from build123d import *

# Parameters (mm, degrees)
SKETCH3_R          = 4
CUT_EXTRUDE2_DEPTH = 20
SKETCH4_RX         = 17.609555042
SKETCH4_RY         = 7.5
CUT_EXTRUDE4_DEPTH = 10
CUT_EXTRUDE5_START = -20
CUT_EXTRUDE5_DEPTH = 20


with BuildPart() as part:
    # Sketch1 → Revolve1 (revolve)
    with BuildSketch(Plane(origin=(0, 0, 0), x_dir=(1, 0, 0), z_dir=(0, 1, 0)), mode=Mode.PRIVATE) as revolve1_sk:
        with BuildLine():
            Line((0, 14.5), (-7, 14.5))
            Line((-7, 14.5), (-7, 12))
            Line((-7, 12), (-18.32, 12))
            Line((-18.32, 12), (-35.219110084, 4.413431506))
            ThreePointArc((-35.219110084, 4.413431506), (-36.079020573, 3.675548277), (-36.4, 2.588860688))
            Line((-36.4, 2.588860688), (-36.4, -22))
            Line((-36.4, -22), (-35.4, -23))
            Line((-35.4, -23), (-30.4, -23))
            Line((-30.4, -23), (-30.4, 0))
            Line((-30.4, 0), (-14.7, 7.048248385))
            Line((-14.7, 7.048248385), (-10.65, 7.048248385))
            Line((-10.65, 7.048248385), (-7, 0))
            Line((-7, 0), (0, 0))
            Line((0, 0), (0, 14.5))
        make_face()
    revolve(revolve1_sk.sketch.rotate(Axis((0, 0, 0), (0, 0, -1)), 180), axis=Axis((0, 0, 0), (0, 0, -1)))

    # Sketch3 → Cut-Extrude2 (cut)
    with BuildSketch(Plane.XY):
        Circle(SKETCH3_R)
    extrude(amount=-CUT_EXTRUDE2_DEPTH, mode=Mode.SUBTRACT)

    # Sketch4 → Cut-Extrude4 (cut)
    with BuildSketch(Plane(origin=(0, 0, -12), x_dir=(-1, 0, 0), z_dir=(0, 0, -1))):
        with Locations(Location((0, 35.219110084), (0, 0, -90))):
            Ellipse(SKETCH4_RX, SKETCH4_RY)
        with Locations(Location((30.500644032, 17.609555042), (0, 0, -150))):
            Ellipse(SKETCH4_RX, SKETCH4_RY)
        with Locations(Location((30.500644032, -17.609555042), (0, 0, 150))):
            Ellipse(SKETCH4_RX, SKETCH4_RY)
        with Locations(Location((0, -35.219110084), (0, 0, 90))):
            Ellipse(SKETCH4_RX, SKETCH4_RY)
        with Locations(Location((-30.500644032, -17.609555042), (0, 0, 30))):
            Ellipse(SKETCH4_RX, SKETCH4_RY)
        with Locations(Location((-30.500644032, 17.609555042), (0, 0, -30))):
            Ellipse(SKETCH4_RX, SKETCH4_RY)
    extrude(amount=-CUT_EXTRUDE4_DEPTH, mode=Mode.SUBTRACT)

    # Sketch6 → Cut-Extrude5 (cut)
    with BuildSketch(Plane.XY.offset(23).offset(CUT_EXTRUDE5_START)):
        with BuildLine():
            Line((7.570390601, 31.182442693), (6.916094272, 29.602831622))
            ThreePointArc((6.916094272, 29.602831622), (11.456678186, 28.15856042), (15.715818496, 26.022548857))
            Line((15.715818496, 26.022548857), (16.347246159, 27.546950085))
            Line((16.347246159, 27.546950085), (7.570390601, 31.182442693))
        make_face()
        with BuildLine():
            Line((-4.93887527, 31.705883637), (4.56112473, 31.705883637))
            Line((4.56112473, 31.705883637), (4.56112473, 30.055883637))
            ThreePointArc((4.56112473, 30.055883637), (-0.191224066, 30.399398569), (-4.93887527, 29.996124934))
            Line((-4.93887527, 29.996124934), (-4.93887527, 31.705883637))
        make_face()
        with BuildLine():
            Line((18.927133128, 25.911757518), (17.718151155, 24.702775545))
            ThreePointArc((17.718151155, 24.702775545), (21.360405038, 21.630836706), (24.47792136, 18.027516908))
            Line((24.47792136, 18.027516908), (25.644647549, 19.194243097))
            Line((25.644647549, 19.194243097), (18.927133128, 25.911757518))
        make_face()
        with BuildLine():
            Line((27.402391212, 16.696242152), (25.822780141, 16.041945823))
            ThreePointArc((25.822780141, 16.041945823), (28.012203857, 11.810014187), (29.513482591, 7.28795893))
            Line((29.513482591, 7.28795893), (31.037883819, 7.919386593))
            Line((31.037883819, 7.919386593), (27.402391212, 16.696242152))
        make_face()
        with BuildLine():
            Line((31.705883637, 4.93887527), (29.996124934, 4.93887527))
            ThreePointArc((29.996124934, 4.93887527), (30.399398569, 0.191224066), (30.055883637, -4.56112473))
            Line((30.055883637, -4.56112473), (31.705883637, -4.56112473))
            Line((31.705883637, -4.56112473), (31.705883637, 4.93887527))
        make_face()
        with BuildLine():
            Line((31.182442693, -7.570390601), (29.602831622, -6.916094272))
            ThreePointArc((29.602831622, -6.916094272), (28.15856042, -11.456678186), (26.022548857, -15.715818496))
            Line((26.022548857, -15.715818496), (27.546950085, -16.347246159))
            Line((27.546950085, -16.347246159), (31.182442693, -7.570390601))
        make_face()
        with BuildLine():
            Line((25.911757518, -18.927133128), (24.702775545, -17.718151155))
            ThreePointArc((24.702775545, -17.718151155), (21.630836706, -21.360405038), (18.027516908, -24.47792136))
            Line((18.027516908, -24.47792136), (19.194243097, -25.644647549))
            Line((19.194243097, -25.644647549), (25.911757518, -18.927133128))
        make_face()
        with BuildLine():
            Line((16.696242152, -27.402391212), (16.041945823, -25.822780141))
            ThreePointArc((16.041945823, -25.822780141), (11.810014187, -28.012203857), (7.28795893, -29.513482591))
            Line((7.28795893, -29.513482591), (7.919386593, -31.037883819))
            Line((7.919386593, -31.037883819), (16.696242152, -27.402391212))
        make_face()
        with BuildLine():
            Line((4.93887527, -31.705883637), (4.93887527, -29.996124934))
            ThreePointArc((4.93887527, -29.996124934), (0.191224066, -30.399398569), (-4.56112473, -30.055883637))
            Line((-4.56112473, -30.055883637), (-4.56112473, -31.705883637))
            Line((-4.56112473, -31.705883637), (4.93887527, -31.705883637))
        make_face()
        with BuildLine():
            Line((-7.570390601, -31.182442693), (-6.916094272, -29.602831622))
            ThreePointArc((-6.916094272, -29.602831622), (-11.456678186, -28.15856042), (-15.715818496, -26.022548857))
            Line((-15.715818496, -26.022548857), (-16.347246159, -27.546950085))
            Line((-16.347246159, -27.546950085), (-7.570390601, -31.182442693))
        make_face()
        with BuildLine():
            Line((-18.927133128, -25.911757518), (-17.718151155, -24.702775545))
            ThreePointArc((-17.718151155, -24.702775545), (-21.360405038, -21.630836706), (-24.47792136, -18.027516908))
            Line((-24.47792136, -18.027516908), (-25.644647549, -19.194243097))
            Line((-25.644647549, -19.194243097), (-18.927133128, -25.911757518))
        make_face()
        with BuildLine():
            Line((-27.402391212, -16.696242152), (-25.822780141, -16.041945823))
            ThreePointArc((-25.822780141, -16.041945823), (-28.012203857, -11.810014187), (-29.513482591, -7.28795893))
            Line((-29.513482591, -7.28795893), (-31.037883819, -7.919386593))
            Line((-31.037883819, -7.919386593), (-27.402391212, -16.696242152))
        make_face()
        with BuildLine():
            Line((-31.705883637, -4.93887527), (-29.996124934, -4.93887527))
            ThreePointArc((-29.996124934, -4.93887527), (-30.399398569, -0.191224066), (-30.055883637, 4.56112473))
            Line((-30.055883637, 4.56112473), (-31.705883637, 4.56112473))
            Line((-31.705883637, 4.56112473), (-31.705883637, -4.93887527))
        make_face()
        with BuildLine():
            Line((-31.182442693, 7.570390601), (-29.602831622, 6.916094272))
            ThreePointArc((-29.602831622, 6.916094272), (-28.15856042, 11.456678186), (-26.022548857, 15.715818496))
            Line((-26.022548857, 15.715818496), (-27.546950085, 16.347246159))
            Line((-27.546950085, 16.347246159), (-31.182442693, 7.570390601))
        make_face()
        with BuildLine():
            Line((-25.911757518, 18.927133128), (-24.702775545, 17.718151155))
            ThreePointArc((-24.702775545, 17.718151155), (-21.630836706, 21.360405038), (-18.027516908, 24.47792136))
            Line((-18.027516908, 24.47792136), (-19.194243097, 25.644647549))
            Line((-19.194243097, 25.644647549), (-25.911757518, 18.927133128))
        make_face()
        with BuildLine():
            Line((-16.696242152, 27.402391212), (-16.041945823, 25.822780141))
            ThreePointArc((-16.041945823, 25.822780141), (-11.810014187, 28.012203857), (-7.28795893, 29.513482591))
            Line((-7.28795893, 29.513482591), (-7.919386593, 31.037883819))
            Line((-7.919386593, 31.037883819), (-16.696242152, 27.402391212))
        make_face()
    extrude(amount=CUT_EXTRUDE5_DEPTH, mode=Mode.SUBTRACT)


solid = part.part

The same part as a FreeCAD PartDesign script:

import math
import FreeCAD as App
import Part
import Sketcher
Q = App.Units.Quantity

doc = App.newDocument("Part")
params = doc.addObject("Spreadsheet::Sheet", "Params")
for row, (alias, value) in enumerate([
    ("sketch1_radius", "2 mm"),
    ("sketch1_width", "7 mm"),
    ("sketch1_width2", "5 mm"),
    ("sketch1_height", "23 mm"),
    ("sketch1_height2", "2.5 mm"),
    ("revolution_angle", "360 deg"),
    ("sketch2_diameter", "8 mm"),
    ("pocket1_length", "20 mm"),
    ("pocket2_length", "10 mm"),
    ("sketch4_radius", "30.4 mm"),
    ("sketch4_width", "9.5 mm"),
    ("sketch4_length", "9.5 mm"),
    ("sketch4_width2", "1.65 mm"),
    ("sketch4_length2", "1.65 mm"),
    ("pocket3_length", "20 mm"),
], start=1):
    params.set(f"A{row}", alias)
    params.set(f"B{row}", "=" + value)
    params.setAlias(f"B{row}", alias)

body = doc.addObject("PartDesign::Body", "Body")

# Sketch on XZ plane
sketch1 = body.newObject("Sketcher::SketchObject", "Sketch")
sketch1.AttachmentSupport = (doc.getObject("XZ_Plane"), [""])
sketch1.MapMode = "FlatFace"
sketch1.addGeometry(Part.LineSegment(App.Vector(0, -14.5, 0), App.Vector(-7, -14.5, 0)), False)
sketch1.addGeometry(Part.LineSegment(App.Vector(-7, -14.5, 0), App.Vector(-7, -12, 0)), False)
sketch1.addGeometry(Part.LineSegment(App.Vector(-7, -12, 0), App.Vector(-18.3, -12, 0)), False)
sketch1.addGeometry(Part.LineSegment(App.Vector(-18.3, -12, 0), App.Vector(-35.2, -4.4, 0)), False)
sketch1.addGeometry(Part.ArcOfCircle(Part.Circle(App.Vector(-34.4, -2.6, 0), App.Vector(0, 0, 1), 2), math.radians(180), math.radians(246)), False)
sketch1.addGeometry(Part.LineSegment(App.Vector(-36.4, -2.6, 0), App.Vector(-36.4, 22, 0)), False)
sketch1.addGeometry(Part.LineSegment(App.Vector(-36.4, 22, 0), App.Vector(-35.4, 23, 0)), False)
sketch1.addGeometry(Part.LineSegment(App.Vector(-35.4, 23, 0), App.Vector(-30.4, 23, 0)), False)
sketch1.addGeometry(Part.LineSegment(App.Vector(-30.4, 23, 0), App.Vector(-30.4, 0, 0)), False)
sketch1.addGeometry(Part.LineSegment(App.Vector(-30.4, 0, 0), App.Vector(-14.7, -7, 0)), False)
sketch1.addGeometry(Part.LineSegment(App.Vector(-14.7, -7, 0), App.Vector(-10.7, -7, 0)), False)
sketch1.addGeometry(Part.LineSegment(App.Vector(-10.7, -7, 0), App.Vector(-7, 0, 0)), False)
sketch1.addGeometry(Part.LineSegment(App.Vector(-7, 0, 0), App.Vector(0, 0, 0)), False)
sketch1.addGeometry(Part.LineSegment(App.Vector(0, 0, 0), App.Vector(0, -14.5, 0)), False)
sketch1.addConstraint(Sketcher.Constraint("Coincident", 0, 2, 1, 1))
sketch1.addConstraint(Sketcher.Constraint("Coincident", 1, 2, 2, 1))
sketch1.addConstraint(Sketcher.Constraint("Coincident", 2, 2, 3, 1))
sketch1.addConstraint(Sketcher.Constraint("Tangent", 3, 2, 4, 2))
sketch1.addConstraint(Sketcher.Constraint("Tangent", 4, 1, 5, 1))
sketch1.addConstraint(Sketcher.Constraint("Coincident", 5, 2, 6, 1))
sketch1.addConstraint(Sketcher.Constraint("Coincident", 6, 2, 7, 1))
sketch1.addConstraint(Sketcher.Constraint("Coincident", 7, 2, 8, 1))
sketch1.addConstraint(Sketcher.Constraint("Coincident", 8, 2, 9, 1))
sketch1.addConstraint(Sketcher.Constraint("Coincident", 9, 2, 10, 1))
sketch1.addConstraint(Sketcher.Constraint("Coincident", 10, 2, 11, 1))
sketch1.addConstraint(Sketcher.Constraint("Coincident", 11, 2, 12, 1))
sketch1.addConstraint(Sketcher.Constraint("Coincident", 12, 2, 13, 1))
sketch1.addConstraint(Sketcher.Constraint("Coincident", 13, 2, 0, 1))
sketch1.addConstraint(Sketcher.Constraint("Horizontal", 0))
sketch1.addConstraint(Sketcher.Constraint("Vertical", 1))
sketch1.addConstraint(Sketcher.Constraint("Horizontal", 2))
sketch1.addConstraint(Sketcher.Constraint("Vertical", 5))
sketch1.addConstraint(Sketcher.Constraint("Horizontal", 7))
sketch1.addConstraint(Sketcher.Constraint("Vertical", 8))
sketch1.addConstraint(Sketcher.Constraint("Horizontal", 10))
sketch1.addConstraint(Sketcher.Constraint("Horizontal", 12))
sketch1.addConstraint(Sketcher.Constraint("Vertical", 13))
sketch1.addConstraint(Sketcher.Constraint("Coincident", 12, 2, -1, 1))
sketch1.addConstraint(Sketcher.Constraint("PointOnObject", 8, 2, -1))
sketch1.addConstraint(Sketcher.Constraint("Parallel", 3, 9))
sketch1.addConstraint(Sketcher.Constraint("Vertical", 1, 2, 11, 2))
sketch1.addConstraint(Sketcher.Constraint("Radius", 4, 2.0))
sketch1.addConstraint(Sketcher.Constraint("DistanceX", 0, 2, 0, 1, 7.0))
sketch1.addConstraint(Sketcher.Constraint("DistanceX", 7, 1, 7, 2, 5.0))
sketch1.addConstraint(Sketcher.Constraint("DistanceY", 8, 2, 8, 1, 23.0))
sketch1.addConstraint(Sketcher.Constraint("Angle", 6, Q("45 deg")))
sketch1.addConstraint(Sketcher.Constraint("DistanceY", 1, 1, 1, 2, 2.5))
sketch1.addConstraint(Sketcher.Constraint("DistanceY", 13, 2, 13, 1, 14.5))
sketch1.addConstraint(Sketcher.Constraint("DistanceY", -1, 1, 5, 2, 22.0))
sketch1.addConstraint(Sketcher.Constraint("DistanceX", 2, 2, 2, 1, 11.32))
sketch1.addConstraint(Sketcher.Constraint("DistanceX", 10, 1, 10, 2, 4.05))
sketch1.addConstraint(Sketcher.Constraint("DistanceX", 4, 3, -1, 1, 34.4))
sketch1.addConstraint(Sketcher.Constraint("DistanceX", 9, 2, -1, 1, 14.7))
sketch1.addConstraint(Sketcher.Constraint("DistanceY", 5, 1, 5, 2, 24.588861))
sketch1.setExpression("Constraints[27]", "Params.sketch1_radius")
sketch1.setExpression("Constraints[28]", "Params.sketch1_width")
sketch1.setExpression("Constraints[29]", "Params.sketch1_width2")
sketch1.setExpression("Constraints[30]", "Params.sketch1_height")
sketch1.setExpression("Constraints[32]", "Params.sketch1_height2")
revolution = body.newObject("PartDesign::Revolution", "Revolution")
revolution.Profile = sketch1
revolution.ReferenceAxis = (sketch1, ["V_Axis"])
revolution.setExpression("Angle", "Params.revolution_angle")

# Sketch on XY plane
sketch2 = body.newObject("Sketcher::SketchObject", "Sketch001")
sketch2.AttachmentSupport = (doc.getObject("XY_Plane"), [""])
sketch2.MapMode = "FlatFace"
sketch2.addGeometry(Part.Circle(App.Vector(0, 0, 0), App.Vector(0, 0, 1), 4), False)
sketch2.addConstraint(Sketcher.Constraint("Coincident", 0, 3, -1, 1))
sketch2.addConstraint(Sketcher.Constraint("Diameter", 0, 8.0))
sketch2.setExpression("Constraints[1]", "Params.sketch2_diameter")
pocket1 = body.newObject("PartDesign::Pocket", "Pocket")
pocket1.Profile = sketch2
pocket1.setExpression("Length", "Params.pocket1_length")

# Sketch on XY plane
sketch3 = body.newObject("Sketcher::SketchObject", "Sketch002")
sketch3.AttachmentSupport = (doc.getObject("XY_Plane"), [""])
sketch3.MapMode = "FlatFace"
sketch3.AttachmentOffset = App.Placement(App.Vector(0, 0, -12), App.Rotation())
sketch3.addGeometry(Part.Ellipse(App.Vector(0, 17.609555, 0), App.Vector(7.5, 35.21911, 0), App.Vector(0, 35.21911, 0)), False)
sketch3.addGeometry(Part.Ellipse(App.Vector(-15.250322, 8.804778, 0), App.Vector(-26.750644, 24.104746, 0), App.Vector(-30.500644, 17.609555, 0)), False)
sketch3.addGeometry(Part.Ellipse(App.Vector(-15.250322, -8.804778, 0), App.Vector(-34.250644, -11.114365, 0), App.Vector(-30.500644, -17.609555, 0)), False)
sketch3.addGeometry(Part.Ellipse(App.Vector(0, -17.609555, 0), App.Vector(-7.5, -35.21911, 0), App.Vector(0, -35.21911, 0)), False)
sketch3.addGeometry(Part.Ellipse(App.Vector(15.250322, -8.804778, 0), App.Vector(26.750644, -24.104746, 0), App.Vector(30.500644, -17.609555, 0)), False)
sketch3.addGeometry(Part.Ellipse(App.Vector(15.250322, 8.804778, 0), App.Vector(34.250644, 11.114365, 0), App.Vector(30.500644, 17.609555, 0)), False)
sketch3.addConstraint(Sketcher.Constraint("Block", 0))
sketch3.addConstraint(Sketcher.Constraint("Block", 1))
sketch3.addConstraint(Sketcher.Constraint("Block", 2))
sketch3.addConstraint(Sketcher.Constraint("Block", 3))
sketch3.addConstraint(Sketcher.Constraint("Block", 4))
sketch3.addConstraint(Sketcher.Constraint("Block", 5))
pocket2 = body.newObject("PartDesign::Pocket", "Pocket001")
pocket2.Profile = sketch3
pocket2.setExpression("Length", "Params.pocket2_length")
pocket2.Reversed = True

# Sketch on XY plane
sketch4 = body.newObject("Sketcher::SketchObject", "Sketch003")
sketch4.AttachmentSupport = (doc.getObject("XY_Plane"), [""])
sketch4.MapMode = "FlatFace"
sketch4.AttachmentOffset = App.Placement(App.Vector(0, 0, 3), App.Rotation())
sketch4.addGeometry(Part.LineSegment(App.Vector(7.6, 31.2, 0), App.Vector(6.9, 29.6, 0)), False)
sketch4.addGeometry(Part.ArcOfCircle(Part.Circle(App.Vector(0, 0, 0), App.Vector(0, 0, 1), 30.4), math.radians(58.87), math.radians(76.85)), False)
sketch4.addGeometry(Part.LineSegment(App.Vector(15.7, 26, 0), App.Vector(16.3, 27.5, 0)), False)
sketch4.addGeometry(Part.LineSegment(App.Vector(16.3, 27.5, 0), App.Vector(7.6, 31.2, 0)), False)
sketch4.addGeometry(Part.LineSegment(App.Vector(4.6, 31.7, 0), App.Vector(-4.9, 31.7, 0)), False)
sketch4.addGeometry(Part.LineSegment(App.Vector(-4.9, 31.7, 0), App.Vector(-4.9, 30, 0)), False)
sketch4.addGeometry(Part.ArcOfCircle(Part.Circle(App.Vector(0, 0, 0), App.Vector(0, 0, 1), 30.4), math.radians(81.37), math.radians(99.35)), False)
sketch4.addGeometry(Part.LineSegment(App.Vector(4.6, 30.1, 0), App.Vector(4.6, 31.7, 0)), False)
sketch4.addGeometry(Part.LineSegment(App.Vector(18.9, 25.9, 0), App.Vector(17.7, 24.7, 0)), False)
sketch4.addGeometry(Part.ArcOfCircle(Part.Circle(App.Vector(0, 0, 0), App.Vector(0, 0, 1), 30.4), math.radians(36.37), math.radians(54.35)), False)
sketch4.addGeometry(Part.LineSegment(App.Vector(24.5, 18, 0), App.Vector(25.6, 19.2, 0)), False)
sketch4.addGeometry(Part.LineSegment(App.Vector(25.6, 19.2, 0), App.Vector(18.9, 25.9, 0)), False)
sketch4.addGeometry(Part.LineSegment(App.Vector(27.4, 16.7, 0), App.Vector(25.8, 16, 0)), False)
sketch4.addGeometry(Part.ArcOfCircle(Part.Circle(App.Vector(0, 0, 0), App.Vector(0, 0, 1), 30.4), math.radians(13.87), math.radians(31.85)), False)
sketch4.addGeometry(Part.LineSegment(App.Vector(29.5, 7.3, 0), App.Vector(31, 7.9, 0)), False)
sketch4.addGeometry(Part.LineSegment(App.Vector(31, 7.9, 0), App.Vector(27.4, 16.7, 0)), False)
sketch4.addGeometry(Part.LineSegment(App.Vector(31.7, 4.9, 0), App.Vector(30, 4.9, 0)), False)
sketch4.addGeometry(Part.ArcOfCircle(Part.Circle(App.Vector(0, 0, 0), App.Vector(0, 0, 1), 30.4), math.radians(-8.63), math.radians(9.35)), False)
sketch4.addGeometry(Part.LineSegment(App.Vector(30.1, -4.6, 0), App.Vector(31.7, -4.6, 0)), False)
sketch4.addGeometry(Part.LineSegment(App.Vector(31.7, -4.6, 0), App.Vector(31.7, 4.9, 0)), False)
sketch4.addGeometry(Part.LineSegment(App.Vector(31.2, -7.6, 0), App.Vector(29.6, -6.9, 0)), False)
sketch4.addGeometry(Part.ArcOfCircle(Part.Circle(App.Vector(0, 0, 0), App.Vector(0, 0, 1), 30.4), math.radians(-31.13), math.radians(-13.15)), False)
sketch4.addGeometry(Part.LineSegment(App.Vector(26, -15.7, 0), App.Vector(27.5, -16.3, 0)), False)
sketch4.addGeometry(Part.LineSegment(App.Vector(27.5, -16.3, 0), App.Vector(31.2, -7.6, 0)), False)
sketch4.addGeometry(Part.LineSegment(App.Vector(25.9, -18.9, 0), App.Vector(24.7, -17.7, 0)), False)
sketch4.addGeometry(Part.ArcOfCircle(Part.Circle(App.Vector(0, 0, 0), App.Vector(0, 0, 1), 30.4), math.radians(-53.63), math.radians(-35.65)), False)
sketch4.addGeometry(Part.LineSegment(App.Vector(18, -24.5, 0), App.Vector(19.2, -25.6, 0)), False)
sketch4.addGeometry(Part.LineSegment(App.Vector(19.2, -25.6, 0), App.Vector(25.9, -18.9, 0)), False)
sketch4.addGeometry(Part.LineSegment(App.Vector(16.7, -27.4, 0), App.Vector(16, -25.8, 0)), False)
sketch4.addGeometry(Part.ArcOfCircle(Part.Circle(App.Vector(0, 0, 0), App.Vector(0, 0, 1), 30.4), math.radians(-76.13), math.radians(-58.15)), False)
sketch4.addGeometry(Part.LineSegment(App.Vector(7.3, -29.5, 0), App.Vector(7.9, -31, 0)), False)
sketch4.addGeometry(Part.LineSegment(App.Vector(7.9, -31, 0), App.Vector(16.7, -27.4, 0)), False)
sketch4.addGeometry(Part.LineSegment(App.Vector(4.9, -31.7, 0), App.Vector(4.9, -30, 0)), False)
sketch4.addGeometry(Part.ArcOfCircle(Part.Circle(App.Vector(0, 0, 0), App.Vector(0, 0, 1), 30.4), math.radians(-98.63), math.radians(-80.65)), False)
sketch4.addGeometry(Part.LineSegment(App.Vector(-4.6, -30.1, 0), App.Vector(-4.6, -31.7, 0)), False)
sketch4.addGeometry(Part.LineSegment(App.Vector(-4.6, -31.7, 0), App.Vector(4.9, -31.7, 0)), False)
sketch4.addGeometry(Part.LineSegment(App.Vector(-7.6, -31.2, 0), App.Vector(-6.9, -29.6, 0)), False)
sketch4.addGeometry(Part.ArcOfCircle(Part.Circle(App.Vector(0, 0, 0), App.Vector(0, 0, 1), 30.4), math.radians(-121.13), math.radians(-103.15)), False)
sketch4.addGeometry(Part.LineSegment(App.Vector(-15.7, -26, 0), App.Vector(-16.3, -27.5, 0)), False)
sketch4.addGeometry(Part.LineSegment(App.Vector(-16.3, -27.5, 0), App.Vector(-7.6, -31.2, 0)), False)
sketch4.addGeometry(Part.LineSegment(App.Vector(-18.9, -25.9, 0), App.Vector(-17.7, -24.7, 0)), False)
sketch4.addGeometry(Part.ArcOfCircle(Part.Circle(App.Vector(0, 0, 0), App.Vector(0, 0, 1), 30.4), math.radians(-143.63), math.radians(-125.65)), False)
sketch4.addGeometry(Part.LineSegment(App.Vector(-24.5, -18, 0), App.Vector(-25.6, -19.2, 0)), False)
sketch4.addGeometry(Part.LineSegment(App.Vector(-25.6, -19.2, 0), App.Vector(-18.9, -25.9, 0)), False)
sketch4.addGeometry(Part.LineSegment(App.Vector(-27.4, -16.7, 0), App.Vector(-25.8, -16, 0)), False)
sketch4.addGeometry(Part.ArcOfCircle(Part.Circle(App.Vector(0, 0, 0), App.Vector(0, 0, 1), 30.4), math.radians(-166.13), math.radians(-148.15)), False)
sketch4.addGeometry(Part.LineSegment(App.Vector(-29.5, -7.3, 0), App.Vector(-31, -7.9, 0)), False)
sketch4.addGeometry(Part.LineSegment(App.Vector(-31, -7.9, 0), App.Vector(-27.4, -16.7, 0)), False)
sketch4.addGeometry(Part.LineSegment(App.Vector(-31.7, -4.9, 0), App.Vector(-30, -4.9, 0)), False)
sketch4.addGeometry(Part.ArcOfCircle(Part.Circle(App.Vector(0, 0, 0), App.Vector(0, 0, 1), 30.4), math.radians(171.37), math.radians(189.35)), False)
sketch4.addGeometry(Part.LineSegment(App.Vector(-30.1, 4.6, 0), App.Vector(-31.7, 4.6, 0)), False)
sketch4.addGeometry(Part.LineSegment(App.Vector(-31.7, 4.6, 0), App.Vector(-31.7, -4.9, 0)), False)
sketch4.addGeometry(Part.LineSegment(App.Vector(-31.2, 7.6, 0), App.Vector(-29.6, 6.9, 0)), False)
sketch4.addGeometry(Part.ArcOfCircle(Part.Circle(App.Vector(0, 0, 0), App.Vector(0, 0, 1), 30.4), math.radians(148.87), math.radians(166.85)), False)
sketch4.addGeometry(Part.LineSegment(App.Vector(-26, 15.7, 0), App.Vector(-27.5, 16.3, 0)), False)
sketch4.addGeometry(Part.LineSegment(App.Vector(-27.5, 16.3, 0), App.Vector(-31.2, 7.6, 0)), False)
sketch4.addGeometry(Part.LineSegment(App.Vector(-25.9, 18.9, 0), App.Vector(-24.7, 17.7, 0)), False)
sketch4.addGeometry(Part.ArcOfCircle(Part.Circle(App.Vector(0, 0, 0), App.Vector(0, 0, 1), 30.4), math.radians(126.37), math.radians(144.35)), False)
sketch4.addGeometry(Part.LineSegment(App.Vector(-18, 24.5, 0), App.Vector(-19.2, 25.6, 0)), False)
sketch4.addGeometry(Part.LineSegment(App.Vector(-19.2, 25.6, 0), App.Vector(-25.9, 18.9, 0)), False)
sketch4.addGeometry(Part.LineSegment(App.Vector(-16.7, 27.4, 0), App.Vector(-16, 25.8, 0)), False)
sketch4.addGeometry(Part.ArcOfCircle(Part.Circle(App.Vector(0, 0, 0), App.Vector(0, 0, 1), 30.4), math.radians(103.87), math.radians(121.85)), False)
sketch4.addGeometry(Part.LineSegment(App.Vector(-7.3, 29.5, 0), App.Vector(-7.9, 31, 0)), False)
sketch4.addGeometry(Part.LineSegment(App.Vector(-7.9, 31, 0), App.Vector(-16.7, 27.4, 0)), False)
sketch4.addConstraint(Sketcher.Constraint("Coincident", 0, 2, 1, 2))
sketch4.addConstraint(Sketcher.Constraint("Coincident", 1, 1, 2, 1))
sketch4.addConstraint(Sketcher.Constraint("Coincident", 2, 2, 3, 1))
sketch4.addConstraint(Sketcher.Constraint("Coincident", 3, 2, 0, 1))
sketch4.addConstraint(Sketcher.Constraint("Coincident", 4, 2, 5, 1))
sketch4.addConstraint(Sketcher.Constraint("Coincident", 5, 2, 6, 2))
sketch4.addConstraint(Sketcher.Constraint("Coincident", 6, 1, 7, 1))
sketch4.addConstraint(Sketcher.Constraint("Coincident", 7, 2, 4, 1))
sketch4.addConstraint(Sketcher.Constraint("Coincident", 8, 2, 9, 2))
sketch4.addConstraint(Sketcher.Constraint("Coincident", 9, 1, 10, 1))
sketch4.addConstraint(Sketcher.Constraint("Coincident", 10, 2, 11, 1))
sketch4.addConstraint(Sketcher.Constraint("Coincident", 11, 2, 8, 1))
sketch4.addConstraint(Sketcher.Constraint("Coincident", 12, 2, 13, 2))
sketch4.addConstraint(Sketcher.Constraint("Coincident", 13, 1, 14, 1))
sketch4.addConstraint(Sketcher.Constraint("Coincident", 14, 2, 15, 1))
sketch4.addConstraint(Sketcher.Constraint("Coincident", 15, 2, 12, 1))
sketch4.addConstraint(Sketcher.Constraint("Coincident", 16, 2, 17, 2))
sketch4.addConstraint(Sketcher.Constraint("Coincident", 17, 1, 18, 1))
sketch4.addConstraint(Sketcher.Constraint("Coincident", 18, 2, 19, 1))
sketch4.addConstraint(Sketcher.Constraint("Coincident", 19, 2, 16, 1))
sketch4.addConstraint(Sketcher.Constraint("Coincident", 20, 2, 21, 2))
sketch4.addConstraint(Sketcher.Constraint("Coincident", 21, 1, 22, 1))
sketch4.addConstraint(Sketcher.Constraint("Coincident", 22, 2, 23, 1))
sketch4.addConstraint(Sketcher.Constraint("Coincident", 23, 2, 20, 1))
sketch4.addConstraint(Sketcher.Constraint("Coincident", 24, 2, 25, 2))
sketch4.addConstraint(Sketcher.Constraint("Coincident", 25, 1, 26, 1))
sketch4.addConstraint(Sketcher.Constraint("Coincident", 26, 2, 27, 1))
sketch4.addConstraint(Sketcher.Constraint("Coincident", 27, 2, 24, 1))
sketch4.addConstraint(Sketcher.Constraint("Coincident", 28, 2, 29, 2))
sketch4.addConstraint(Sketcher.Constraint("Coincident", 29, 1, 30, 1))
sketch4.addConstraint(Sketcher.Constraint("Coincident", 30, 2, 31, 1))
sketch4.addConstraint(Sketcher.Constraint("Coincident", 31, 2, 28, 1))
sketch4.addConstraint(Sketcher.Constraint("Coincident", 32, 2, 33, 2))
sketch4.addConstraint(Sketcher.Constraint("Coincident", 33, 1, 34, 1))
sketch4.addConstraint(Sketcher.Constraint("Coincident", 34, 2, 35, 1))
sketch4.addConstraint(Sketcher.Constraint("Coincident", 35, 2, 32, 1))
sketch4.addConstraint(Sketcher.Constraint("Coincident", 36, 2, 37, 2))
sketch4.addConstraint(Sketcher.Constraint("Coincident", 37, 1, 38, 1))
sketch4.addConstraint(Sketcher.Constraint("Coincident", 38, 2, 39, 1))
sketch4.addConstraint(Sketcher.Constraint("Coincident", 39, 2, 36, 1))
sketch4.addConstraint(Sketcher.Constraint("Coincident", 40, 2, 41, 2))
sketch4.addConstraint(Sketcher.Constraint("Coincident", 41, 1, 42, 1))
sketch4.addConstraint(Sketcher.Constraint("Coincident", 42, 2, 43, 1))
sketch4.addConstraint(Sketcher.Constraint("Coincident", 43, 2, 40, 1))
sketch4.addConstraint(Sketcher.Constraint("Coincident", 44, 2, 45, 2))
sketch4.addConstraint(Sketcher.Constraint("Coincident", 45, 1, 46, 1))
sketch4.addConstraint(Sketcher.Constraint("Coincident", 46, 2, 47, 1))
sketch4.addConstraint(Sketcher.Constraint("Coincident", 47, 2, 44, 1))
sketch4.addConstraint(Sketcher.Constraint("Coincident", 48, 2, 49, 2))
sketch4.addConstraint(Sketcher.Constraint("Coincident", 49, 1, 50, 1))
sketch4.addConstraint(Sketcher.Constraint("Coincident", 50, 2, 51, 1))
sketch4.addConstraint(Sketcher.Constraint("Coincident", 51, 2, 48, 1))
sketch4.addConstraint(Sketcher.Constraint("Coincident", 52, 2, 53, 2))
sketch4.addConstraint(Sketcher.Constraint("Coincident", 53, 1, 54, 1))
sketch4.addConstraint(Sketcher.Constraint("Coincident", 54, 2, 55, 1))
sketch4.addConstraint(Sketcher.Constraint("Coincident", 55, 2, 52, 1))
sketch4.addConstraint(Sketcher.Constraint("Coincident", 56, 2, 57, 2))
sketch4.addConstraint(Sketcher.Constraint("Coincident", 57, 1, 58, 1))
sketch4.addConstraint(Sketcher.Constraint("Coincident", 58, 2, 59, 1))
sketch4.addConstraint(Sketcher.Constraint("Coincident", 59, 2, 56, 1))
sketch4.addConstraint(Sketcher.Constraint("Coincident", 60, 2, 61, 2))
sketch4.addConstraint(Sketcher.Constraint("Coincident", 61, 1, 62, 1))
sketch4.addConstraint(Sketcher.Constraint("Coincident", 62, 2, 63, 1))
sketch4.addConstraint(Sketcher.Constraint("Coincident", 63, 2, 60, 1))
sketch4.addConstraint(Sketcher.Constraint("Horizontal", 4))
sketch4.addConstraint(Sketcher.Constraint("Vertical", 5))
sketch4.addConstraint(Sketcher.Constraint("Vertical", 7))
sketch4.addConstraint(Sketcher.Constraint("Horizontal", 16))
sketch4.addConstraint(Sketcher.Constraint("Horizontal", 18))
sketch4.addConstraint(Sketcher.Constraint("Vertical", 19))
sketch4.addConstraint(Sketcher.Constraint("Vertical", 32))
sketch4.addConstraint(Sketcher.Constraint("Vertical", 34))
sketch4.addConstraint(Sketcher.Constraint("Horizontal", 35))
sketch4.addConstraint(Sketcher.Constraint("Horizontal", 48))
sketch4.addConstraint(Sketcher.Constraint("Horizontal", 50))
sketch4.addConstraint(Sketcher.Constraint("Vertical", 51))
sketch4.addConstraint(Sketcher.Constraint("Coincident", 1, 3, -1, 1))
sketch4.addConstraint(Sketcher.Constraint("Coincident", 6, 3, -1, 1))
sketch4.addConstraint(Sketcher.Constraint("Coincident", 9, 3, -1, 1))
sketch4.addConstraint(Sketcher.Constraint("Coincident", 13, 3, -1, 1))
sketch4.addConstraint(Sketcher.Constraint("Coincident", 17, 3, -1, 1))
sketch4.addConstraint(Sketcher.Constraint("Coincident", 21, 3, -1, 1))
sketch4.addConstraint(Sketcher.Constraint("Coincident", 25, 3, -1, 1))
sketch4.addConstraint(Sketcher.Constraint("Coincident", 29, 3, -1, 1))
sketch4.addConstraint(Sketcher.Constraint("Coincident", 33, 3, -1, 1))
sketch4.addConstraint(Sketcher.Constraint("Coincident", 37, 3, -1, 1))
sketch4.addConstraint(Sketcher.Constraint("Coincident", 41, 3, -1, 1))
sketch4.addConstraint(Sketcher.Constraint("Coincident", 45, 3, -1, 1))
sketch4.addConstraint(Sketcher.Constraint("Coincident", 49, 3, -1, 1))
sketch4.addConstraint(Sketcher.Constraint("Coincident", 53, 3, -1, 1))
sketch4.addConstraint(Sketcher.Constraint("Coincident", 57, 3, -1, 1))
sketch4.addConstraint(Sketcher.Constraint("Coincident", 61, 3, -1, 1))
sketch4.addConstraint(Sketcher.Constraint("Equal", 1, 6))
sketch4.addConstraint(Sketcher.Constraint("Equal", 6, 9))
sketch4.addConstraint(Sketcher.Constraint("Equal", 9, 13))
sketch4.addConstraint(Sketcher.Constraint("Equal", 13, 17))
sketch4.addConstraint(Sketcher.Constraint("Equal", 17, 21))
sketch4.addConstraint(Sketcher.Constraint("Equal", 21, 25))
sketch4.addConstraint(Sketcher.Constraint("Equal", 25, 29))
sketch4.addConstraint(Sketcher.Constraint("Equal", 29, 33))
sketch4.addConstraint(Sketcher.Constraint("Equal", 33, 37))
sketch4.addConstraint(Sketcher.Constraint("Equal", 37, 41))
sketch4.addConstraint(Sketcher.Constraint("Equal", 41, 45))
sketch4.addConstraint(Sketcher.Constraint("Equal", 45, 49))
sketch4.addConstraint(Sketcher.Constraint("Equal", 49, 53))
sketch4.addConstraint(Sketcher.Constraint("Equal", 53, 57))
sketch4.addConstraint(Sketcher.Constraint("Equal", 57, 61))
sketch4.addConstraint(Sketcher.Constraint("Symmetric", 7, 2, 34, 2, -1, 1))
sketch4.addConstraint(Sketcher.Constraint("Symmetric", 2, 2, 38, 2, -1, 1))
sketch4.addConstraint(Sketcher.Constraint("Symmetric", 3, 2, 39, 2, -1, 1))
sketch4.addConstraint(Sketcher.Constraint("Symmetric", 10, 2, 42, 2, -1, 1))
sketch4.addConstraint(Sketcher.Constraint("Symmetric", 11, 2, 43, 2, -1, 1))
sketch4.addConstraint(Sketcher.Constraint("Symmetric", 14, 2, 46, 2, -1, 1))
sketch4.addConstraint(Sketcher.Constraint("Symmetric", 15, 2, 47, 2, -1, 1))
sketch4.addConstraint(Sketcher.Constraint("Symmetric", 18, 2, 50, 2, -1, 1))
sketch4.addConstraint(Sketcher.Constraint("Symmetric", 22, 2, 54, 2, -1, 1))
sketch4.addConstraint(Sketcher.Constraint("Symmetric", 23, 2, 55, 2, -1, 1))
sketch4.addConstraint(Sketcher.Constraint("Symmetric", 26, 2, 58, 2, -1, 1))
sketch4.addConstraint(Sketcher.Constraint("Symmetric", 27, 2, 59, 2, -1, 1))
sketch4.addConstraint(Sketcher.Constraint("Symmetric", 30, 2, 62, 2, -1, 1))
sketch4.addConstraint(Sketcher.Constraint("Symmetric", 31, 2, 63, 2, -1, 1))
sketch4.addConstraint(Sketcher.Constraint("Parallel", 0, 2))
sketch4.addConstraint(Sketcher.Constraint("Perpendicular", 2, 3))
sketch4.addConstraint(Sketcher.Constraint("Parallel", 8, 10))
sketch4.addConstraint(Sketcher.Constraint("Perpendicular", 10, 11))
sketch4.addConstraint(Sketcher.Constraint("Parallel", 12, 14))
sketch4.addConstraint(Sketcher.Constraint("Perpendicular", 14, 15))
sketch4.addConstraint(Sketcher.Constraint("Parallel", 3, 20))
sketch4.addConstraint(Sketcher.Constraint("Parallel", 20, 22))
sketch4.addConstraint(Sketcher.Constraint("Perpendicular", 22, 23))
sketch4.addConstraint(Sketcher.Constraint("Parallel", 11, 24))
sketch4.addConstraint(Sketcher.Constraint("Parallel", 24, 26))
sketch4.addConstraint(Sketcher.Constraint("Perpendicular", 26, 27))
sketch4.addConstraint(Sketcher.Constraint("Parallel", 15, 28))
sketch4.addConstraint(Sketcher.Constraint("Parallel", 28, 30))
sketch4.addConstraint(Sketcher.Constraint("Perpendicular", 30, 31))
sketch4.addConstraint(Sketcher.Constraint("Parallel", 23, 36))
sketch4.addConstraint(Sketcher.Constraint("Parallel", 36, 38))
sketch4.addConstraint(Sketcher.Constraint("Parallel", 27, 40))
sketch4.addConstraint(Sketcher.Constraint("Parallel", 40, 42))
sketch4.addConstraint(Sketcher.Constraint("Parallel", 31, 44))
sketch4.addConstraint(Sketcher.Constraint("Parallel", 44, 46))
sketch4.addConstraint(Sketcher.Constraint("Parallel", 39, 52))
sketch4.addConstraint(Sketcher.Constraint("Parallel", 52, 54))
sketch4.addConstraint(Sketcher.Constraint("Parallel", 43, 56))
sketch4.addConstraint(Sketcher.Constraint("Parallel", 56, 58))
sketch4.addConstraint(Sketcher.Constraint("Parallel", 47, 60))
sketch4.addConstraint(Sketcher.Constraint("Parallel", 60, 62))
sketch4.addConstraint(Sketcher.Constraint("Equal", 4, 35))
sketch4.addConstraint(Sketcher.Constraint("Equal", 16, 48))
sketch4.addConstraint(Sketcher.Constraint("Equal", 48, 5))
sketch4.addConstraint(Sketcher.Constraint("Equal", 50, 7))
sketch4.addConstraint(Sketcher.Constraint("Equal", 35, 19))
sketch4.addConstraint(Sketcher.Constraint("Equal", 0, 8))
sketch4.addConstraint(Sketcher.Constraint("Equal", 2, 10))
sketch4.addConstraint(Sketcher.Constraint("Equal", 3, 11))
sketch4.addConstraint(Sketcher.Constraint("Equal", 8, 12))
sketch4.addConstraint(Sketcher.Constraint("Equal", 10, 14))
sketch4.addConstraint(Sketcher.Constraint("Equal", 11, 15))
sketch4.addConstraint(Sketcher.Constraint("Equal", 12, 20))
sketch4.addConstraint(Sketcher.Constraint("Equal", 14, 22))
sketch4.addConstraint(Sketcher.Constraint("Equal", 15, 23))
sketch4.addConstraint(Sketcher.Constraint("Equal", 20, 24))
sketch4.addConstraint(Sketcher.Constraint("Equal", 22, 26))
sketch4.addConstraint(Sketcher.Constraint("Equal", 23, 27))
sketch4.addConstraint(Sketcher.Constraint("Equal", 24, 28))
sketch4.addConstraint(Sketcher.Constraint("Equal", 26, 30))
sketch4.addConstraint(Sketcher.Constraint("Equal", 27, 31))
sketch4.addConstraint(Sketcher.Constraint("Radius", 1, 30.4))
sketch4.addConstraint(Sketcher.Constraint("Angle", 8, Q("-135 deg")))
sketch4.addConstraint(Sketcher.Constraint("DistanceX", 4, 2, 4, 1, 9.5))
sketch4.addConstraint(Sketcher.Constraint("Angle", 0, Q("-112.5 deg")))
sketch4.addConstraint(Sketcher.Constraint("Angle", 12, Q("-157.5 deg")))
sketch4.addConstraint(Sketcher.Constraint("Distance", 3, 9.5))
sketch4.addConstraint(Sketcher.Constraint("DistanceX", 18, 1, 18, 2, 1.65))
sketch4.addConstraint(Sketcher.Constraint("Distance", 2, 1.65))
sketch4.addConstraint(Sketcher.Constraint("DistanceX", 16, 2, 16, 1, 1.709759))
sketch4.addConstraint(Sketcher.Constraint("Distance", 0, 1.709759))
sketch4.setExpression("Constraints[168]", "Params.sketch4_radius")
sketch4.setExpression("Constraints[170]", "Params.sketch4_width")
sketch4.setExpression("Constraints[173]", "Params.sketch4_length")
sketch4.setExpression("Constraints[174]", "Params.sketch4_width2")
sketch4.setExpression("Constraints[175]", "Params.sketch4_length2")
pocket3 = body.newObject("PartDesign::Pocket", "Pocket002")
pocket3.Profile = sketch4
pocket3.setExpression("Length", "Params.pocket3_length")
pocket3.Reversed = True

doc.recompute()
